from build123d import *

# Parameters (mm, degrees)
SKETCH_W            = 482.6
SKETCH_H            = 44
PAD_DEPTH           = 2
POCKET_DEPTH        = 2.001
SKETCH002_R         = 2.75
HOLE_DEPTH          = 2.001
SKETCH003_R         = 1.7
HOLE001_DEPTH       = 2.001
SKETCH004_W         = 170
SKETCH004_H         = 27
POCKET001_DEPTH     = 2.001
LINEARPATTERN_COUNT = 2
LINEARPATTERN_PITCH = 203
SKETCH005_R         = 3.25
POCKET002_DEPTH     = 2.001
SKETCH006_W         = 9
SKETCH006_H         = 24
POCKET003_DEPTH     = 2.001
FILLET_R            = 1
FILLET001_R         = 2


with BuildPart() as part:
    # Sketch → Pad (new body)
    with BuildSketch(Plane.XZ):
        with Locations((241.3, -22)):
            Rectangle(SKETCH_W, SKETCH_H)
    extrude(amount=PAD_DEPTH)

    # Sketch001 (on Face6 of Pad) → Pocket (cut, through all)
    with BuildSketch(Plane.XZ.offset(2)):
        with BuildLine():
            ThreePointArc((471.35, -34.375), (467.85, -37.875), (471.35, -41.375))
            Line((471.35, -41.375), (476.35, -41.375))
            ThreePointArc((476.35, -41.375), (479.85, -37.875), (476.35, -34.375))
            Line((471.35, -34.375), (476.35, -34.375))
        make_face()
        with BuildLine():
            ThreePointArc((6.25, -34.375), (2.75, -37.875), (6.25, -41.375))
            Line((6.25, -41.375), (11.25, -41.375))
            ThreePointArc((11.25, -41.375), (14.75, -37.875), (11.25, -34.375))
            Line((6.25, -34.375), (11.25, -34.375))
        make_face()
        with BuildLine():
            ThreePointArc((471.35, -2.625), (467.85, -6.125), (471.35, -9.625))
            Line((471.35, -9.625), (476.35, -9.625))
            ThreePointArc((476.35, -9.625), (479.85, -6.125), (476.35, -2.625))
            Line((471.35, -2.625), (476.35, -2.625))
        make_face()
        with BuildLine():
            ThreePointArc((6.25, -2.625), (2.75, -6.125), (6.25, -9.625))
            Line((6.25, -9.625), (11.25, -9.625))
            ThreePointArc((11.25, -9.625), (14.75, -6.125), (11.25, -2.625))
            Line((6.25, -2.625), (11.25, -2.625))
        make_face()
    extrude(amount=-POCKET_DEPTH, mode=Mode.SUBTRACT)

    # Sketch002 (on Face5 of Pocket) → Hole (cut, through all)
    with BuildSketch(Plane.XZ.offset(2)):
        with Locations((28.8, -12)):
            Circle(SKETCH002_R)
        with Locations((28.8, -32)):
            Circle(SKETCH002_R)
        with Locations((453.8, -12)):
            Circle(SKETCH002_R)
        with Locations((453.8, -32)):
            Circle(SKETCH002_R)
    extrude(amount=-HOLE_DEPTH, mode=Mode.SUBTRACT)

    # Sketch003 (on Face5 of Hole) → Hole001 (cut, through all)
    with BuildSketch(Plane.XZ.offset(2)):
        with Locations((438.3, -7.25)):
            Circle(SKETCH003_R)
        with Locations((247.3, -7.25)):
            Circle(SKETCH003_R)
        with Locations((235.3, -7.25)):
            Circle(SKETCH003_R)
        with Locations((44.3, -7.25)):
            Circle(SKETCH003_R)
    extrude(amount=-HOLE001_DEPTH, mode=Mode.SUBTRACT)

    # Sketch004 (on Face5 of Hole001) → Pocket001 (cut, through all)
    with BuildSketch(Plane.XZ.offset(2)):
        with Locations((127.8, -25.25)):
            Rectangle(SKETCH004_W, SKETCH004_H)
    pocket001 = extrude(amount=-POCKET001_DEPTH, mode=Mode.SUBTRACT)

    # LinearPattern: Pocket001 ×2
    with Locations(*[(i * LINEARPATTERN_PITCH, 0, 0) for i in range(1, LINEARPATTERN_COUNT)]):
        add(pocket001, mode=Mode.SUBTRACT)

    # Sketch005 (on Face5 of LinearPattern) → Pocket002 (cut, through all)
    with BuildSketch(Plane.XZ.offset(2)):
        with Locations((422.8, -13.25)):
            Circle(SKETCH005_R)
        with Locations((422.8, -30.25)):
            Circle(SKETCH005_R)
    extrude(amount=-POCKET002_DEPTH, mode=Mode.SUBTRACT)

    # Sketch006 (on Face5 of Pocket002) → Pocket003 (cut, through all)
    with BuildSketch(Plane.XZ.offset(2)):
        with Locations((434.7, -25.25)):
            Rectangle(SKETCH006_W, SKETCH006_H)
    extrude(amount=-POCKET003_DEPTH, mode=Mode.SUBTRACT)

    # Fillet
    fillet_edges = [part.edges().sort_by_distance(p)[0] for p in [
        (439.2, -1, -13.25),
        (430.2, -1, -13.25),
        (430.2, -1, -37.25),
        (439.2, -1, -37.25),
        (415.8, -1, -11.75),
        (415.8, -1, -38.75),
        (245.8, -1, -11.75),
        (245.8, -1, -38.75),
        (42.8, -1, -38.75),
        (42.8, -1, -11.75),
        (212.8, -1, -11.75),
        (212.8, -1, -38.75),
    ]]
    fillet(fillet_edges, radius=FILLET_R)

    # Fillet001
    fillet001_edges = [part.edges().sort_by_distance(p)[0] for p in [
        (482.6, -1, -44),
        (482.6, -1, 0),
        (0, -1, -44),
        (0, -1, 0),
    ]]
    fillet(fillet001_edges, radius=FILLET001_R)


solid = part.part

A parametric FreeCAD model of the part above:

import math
import FreeCAD as App
import Part
import Sketcher

V = App.Vector


def edges_at(feature, points):
    """Names of the edges that pass closest to the given points."""
    edges = feature.Shape.Edges
    near = lambda p: min(range(len(edges)), key=lambda i: edges[i].distToShape(Part.Vertex(*p))[0])
    return sorted({f"Edge{near(p) + 1}" for p in points})

doc = App.newDocument("Part")
body = doc.addObject("PartDesign::Body", "Body")

# Sketch on XZ plane
sketch1 = doc.addObject("Sketcher::SketchObject", "Sketch")
body.addObject(sketch1)
sketch1.AttachmentSupport = (doc.XZ_Plane, [""])
sketch1.MapMode = "FlatFace"
sketch1.addGeometry(Part.LineSegment(V(0, 0, 0), V(0, -44, 0)), False)
sketch1.addGeometry(Part.LineSegment(V(0, -44, 0), V(483, -44, 0)), False)
sketch1.addGeometry(Part.LineSegment(V(483, -44, 0), V(483, 0, 0)), False)
sketch1.addGeometry(Part.LineSegment(V(483, 0, 0), V(0, 0, 0)), False)
sketch1.addConstraint(Sketcher.Constraint("Coincident", 0, 2, 1, 1))
sketch1.addConstraint(Sketcher.Constraint("Coincident", 1, 2, 2, 1))
sketch1.addConstraint(Sketcher.Constraint("Coincident", 2, 2, 3, 1))
sketch1.addConstraint(Sketcher.Constraint("Coincident", 3, 2, 0, 1))
sketch1.addConstraint(Sketcher.Constraint("Vertical", 0))
sketch1.addConstraint(Sketcher.Constraint("Horizontal", 1))
sketch1.addConstraint(Sketcher.Constraint("Vertical", 2))
sketch1.addConstraint(Sketcher.Constraint("Horizontal", 3))
sketch1.addConstraint(Sketcher.Constraint("Coincident", 3, 2, -1, 1))
sketch1.addConstraint(Sketcher.Constraint("DistanceY", 0, 2, 0, 1, 44.0))
sketch1.addConstraint(Sketcher.Constraint("DistanceX", 1, 1, 1, 2, 482.6))
pad1 = doc.addObject("PartDesign::Pad", "Pad")
body.addObject(pad1)
pad1.Profile = sketch1
pad1.Length = 2

# Sketch on XZ plane
sketch2 = doc.addObject("Sketcher::SketchObject", "Sketch001")
body.addObject(sketch2)
sketch2.AttachmentSupport = (doc.XZ_Plane, [""])
sketch2.MapMode = "FlatFace"
sketch2.AttachmentOffset = App.Placement(V(0, 0, 2), App.Rotation())
sketch2.addGeometry(Part.ArcOfCircle(Part.Circle(V(471.4, -37.9, 0), V(0, 0, 1), 3.5), math.radians(90), math.radians(270)), False)
sketch2.addGeometry(Part.LineSegment(V(471.4, -41.4, 0), V(476.4, -41.4, 0)), False)
sketch2.addGeometry(Part.ArcOfCircle(Part.Circle(V(476.4, -37.9, 0), V(0, 0, 1), 3.5), math.radians(-90), math.radians(90)), False)
sketch2.addGeometry(Part.LineSegment(V(476.4, -34.4, 0), V(471.4, -34.4, 0)), False)
sketch2.addGeometry(Part.ArcOfCircle(Part.Circle(V(6.2, -37.9, 0), V(0, 0, 1), 3.5), math.radians(90), math.radians(270)), False)
sketch2.addGeometry(Part.LineSegment(V(6.2, -41.4, 0), V(11.2, -41.4, 0)), False)
sketch2.addGeometry(Part.ArcOfCircle(Part.Circle(V(11.2, -37.9, 0), V(0, 0, 1), 3.5), math.radians(-90), math.radians(90)), False)
sketch2.addGeometry(Part.LineSegment(V(11.2, -34.4, 0), V(6.2, -34.4, 0)), False)
sketch2.addGeometry(Part.ArcOfCircle(Part.Circle(V(471.4, -6.1, 0), V(0, 0, 1), 3.5), math.radians(90), math.radians(270)), False)
sketch2.addGeometry(Part.LineSegment(V(471.4, -9.6, 0), V(476.4, -9.6, 0)), False)
sketch2.addGeometry(Part.ArcOfCircle(Part.Circle(V(476.4, -6.1, 0), V(0, 0, 1), 3.5), math.radians(-90), math.radians(90)), False)
sketch2.addGeometry(Part.LineSegment(V(476.4, -2.6, 0), V(471.4, -2.6, 0)), False)
sketch2.addGeometry(Part.ArcOfCircle(Part.Circle(V(6.2, -6.1, 0), V(0, 0, 1), 3.5), math.radians(90), math.radians(270)), False)
sketch2.addGeometry(Part.LineSegment(V(6.2, -9.6, 0), V(11.2, -9.6, 0)), False)
sketch2.addGeometry(Part.ArcOfCircle(Part.Circle(V(11.2, -6.1, 0), V(0, 0, 1), 3.5), math.radians(-90), math.radians(90)), False)
sketch2.addGeometry(Part.LineSegment(V(11.2, -2.6, 0), V(6.2, -2.6, 0)), False)
sketch2.addConstraint(Sketcher.Constraint("Tangent", 0, 2, 1, 1))
sketch2.addConstraint(Sketcher.Constraint("Tangent", 1, 2, 2, 1))
sketch2.addConstraint(Sketcher.Constraint("Tangent", 2, 2, 3, 1))
sketch2.addConstraint(Sketcher.Constraint("Tangent", 3, 2, 0, 1))
sketch2.addConstraint(Sketcher.Constraint("Tangent", 4, 2, 5, 1))
sketch2.addConstraint(Sketcher.Constraint("Tangent", 5, 2, 6, 1))
sketch2.addConstraint(Sketcher.Constraint("Tangent", 6, 2, 7, 1))
sketch2.addConstraint(Sketcher.Constraint("Tangent", 7, 2, 4, 1))
sketch2.addConstraint(Sketcher.Constraint("Tangent", 8, 2, 9, 1))
sketch2.addConstraint(Sketcher.Constraint("Tangent", 9, 2, 10, 1))
sketch2.addConstraint(Sketcher.Constraint("Tangent", 10, 2, 11, 1))
sketch2.addConstraint(Sketcher.Constraint("Tangent", 11, 2, 8, 1))
sketch2.addConstraint(Sketcher.Constraint("Tangent", 12, 2, 13, 1))
sketch2.addConstraint(Sketcher.Constraint("Tangent", 13, 2, 14, 1))
sketch2.addConstraint(Sketcher.Constraint("Tangent", 14, 2, 15, 1))
sketch2.addConstraint(Sketcher.Constraint("Tangent", 15, 2, 12, 1))
sketch2.addConstraint(Sketcher.Constraint("Horizontal", 1))
sketch2.addConstraint(Sketcher.Constraint("Horizontal", 3))
sketch2.addConstraint(Sketcher.Constraint("Horizontal", 5))
sketch2.addConstraint(Sketcher.Constraint("Horizontal", 7))
sketch2.addConstraint(Sketcher.Constraint("Horizontal", 9))
sketch2.addConstraint(Sketcher.Constraint("Horizontal", 11))
sketch2.addConstraint(Sketcher.Constraint("Horizontal", 13))
sketch2.addConstraint(Sketcher.Constraint("Horizontal", 15))
sketch2.addConstraint(Sketcher.Constraint("Equal", 2, 4))
sketch2.addConstraint(Sketcher.Constraint("Equal", 6, 8))
sketch2.addConstraint(Sketcher.Constraint("Equal", 10, 12))
sketch2.addConstraint(Sketcher.Constraint("Horizontal", 2, 3, 4, 3))
sketch2.addConstraint(Sketcher.Constraint("Horizontal", 10, 3, 12, 3))
sketch2.addConstraint(Sketcher.Constraint("Vertical", 0, 3, 8, 3))
sketch2.addConstraint(Sketcher.Constraint("Vertical", 2, 3, 10, 3))
sketch2.addConstraint(Sketcher.Constraint("Vertical", 4, 3, 12, 3))
sketch2.addConstraint(Sketcher.Constraint("Vertical", 6, 3, 14, 3))
sketch2.addConstraint(Sketcher.Constraint("Equal", 3, 5))
sketch2.addConstraint(Sketcher.Constraint("Radius", 0, 3.5))
sketch2.addConstraint(Sketcher.Constraint("DistanceX", 1, 1, 1, 2, 5.0))
sketch2.addConstraint(Sketcher.Constraint("DistanceX", 4, 3, 0, 3, 465.1))
sketch2.addConstraint(Sketcher.Constraint("DistanceX", -1, 1, 0, 3, 471.35))
sketch2.addConstraint(Sketcher.Constraint("DistanceY", 0, 3, 8, 3, 31.75))
sketch2.addConstraint(Sketcher.Constraint("DistanceY", 0, 3, -1, 1, 37.875))
pocket1 = doc.addObject("PartDesign::Pocket", "Pocket")
body.addObject(pocket1)
pocket1.Profile = sketch2
pocket1.Type = "ThroughAll"

# Sketch on XZ plane
sketch3 = doc.addObject("Sketcher::SketchObject", "Sketch002")
body.addObject(sketch3)
sketch3.AttachmentSupport = (doc.XZ_Plane, [""])
sketch3.MapMode = "FlatFace"
sketch3.AttachmentOffset = App.Placement(V(0, 0, 2), App.Rotation())
sketch3.addGeometry(Part.Circle(V(28.8, -12, 0), V(0, 0, 1), 2.8), False)
sketch3.addGeometry(Part.Circle(V(28.8, -32, 0), V(0, 0, 1), 2.8), False)
sketch3.addGeometry(Part.Circle(V(453.8, -12, 0), V(0, 0, 1), 2.8), False)
sketch3.addGeometry(Part.Circle(V(453.8, -32, 0), V(0, 0, 1), 2.8), False)
sketch3.addConstraint(Sketcher.Constraint("Equal", 0, 1))
sketch3.addConstraint(Sketcher.Constraint("Equal", 1, 2))
sketch3.addConstraint(Sketcher.Constraint("Equal", 2, 3))
sketch3.addConstraint(Sketcher.Constraint("Horizontal", 0, 3, 2, 3))
sketch3.addConstraint(Sketcher.Constraint("Horizontal", 1, 3, 3, 3))
sketch3.addConstraint(Sketcher.Constraint("Vertical", 0, 3, 1, 3))
sketch3.addConstraint(Sketcher.Constraint("Vertical", 2, 3, 3, 3))
sketch3.addConstraint(Sketcher.Constraint("Diameter", 0, 5.5))
sketch3.addConstraint(Sketcher.Constraint("DistanceY", 0, 3, -1, 1, 12.0))
sketch3.addConstraint(Sketcher.Constraint("DistanceY", 1, 3, -1, 1, 32.0))
sketch3.addConstraint(Sketcher.Constraint("DistanceX", 0, 3, 2, 3, 425.0))
sketch3.addConstraint(Sketcher.Constraint("DistanceX", -1, 1, 0, 3, 28.8))
pocket2 = doc.addObject("PartDesign::Pocket", "Pocket001")
body.addObject(pocket2)
pocket2.Profile = sketch3
pocket2.Type = "ThroughAll"

# Sketch on XZ plane
sketch4 = doc.addObject("Sketcher::SketchObject", "Sketch003")
body.addObject(sketch4)
sketch4.AttachmentSupport = (doc.XZ_Plane, [""])
sketch4.MapMode = "FlatFace"
sketch4.AttachmentOffset = App.Placement(V(0, 0, 2), App.Rotation())
sketch4.addGeometry(Part.Circle(V(438.3, -7.2, 0), V(0, 0, 1), 1.7), False)
sketch4.addGeometry(Part.Circle(V(247.3, -7.2, 0), V(0, 0, 1), 1.7), False)
sketch4.addGeometry(Part.Circle(V(235.3, -7.2, 0), V(0, 0, 1), 1.7), False)
sketch4.addGeometry(Part.Circle(V(44.3, -7.2, 0), V(0, 0, 1), 1.7), False)
sketch4.addConstraint(Sketcher.Constraint("Equal", 0, 1))
sketch4.addConstraint(Sketcher.Constraint("Equal", 1, 2))
sketch4.addConstraint(Sketcher.Constraint("Equal", 2, 3))
sketch4.addConstraint(Sketcher.Constraint("Horizontal", 0, 3, 1, 3))
sketch4.addConstraint(Sketcher.Constraint("Horizontal", 1, 3, 2, 3))
sketch4.addConstraint(Sketcher.Constraint("Horizontal", 2, 3, 3, 3))
sketch4.addConstraint(Sketcher.Constraint("Diameter", 0, 3.4))
sketch4.addConstraint(Sketcher.Constraint("DistanceX", 1, 3, 0, 3, 191.0))
sketch4.addConstraint(Sketcher.Constraint("DistanceX", 2, 3, 1, 3, 12.0))
sketch4.addConstraint(Sketcher.Constraint("DistanceX", 3, 3, 2, 3, 191.0))
sketch4.addConstraint(Sketcher.Constraint("DistanceX", -1, 1, 0, 3, 438.3))
sketch4.addConstraint(Sketcher.Constraint("DistanceY", 0, 3, -1, 1, 7.25))
pocket3 = doc.addObject("PartDesign::Pocket", "Pocket002")
body.addObject(pocket3)
pocket3.Profile = sketch4
pocket3.Type = "ThroughAll"

# Sketch on XZ plane
sketch5 = doc.addObject("Sketcher::SketchObject", "Sketch004")
body.addObject(sketch5)
sketch5.AttachmentSupport = (doc.XZ_Plane, [""])
sketch5.MapMode = "FlatFace"
sketch5.AttachmentOffset = App.Placement(V(0, 0, 2), App.Rotation())
sketch5.addGeometry(Part.LineSegment(V(43, -12, 0), V(43, -39, 0)), False)
sketch5.addGeometry(Part.LineSegment(V(43, -39, 0), V(213, -39, 0)), False)
sketch5.addGeometry(Part.LineSegment(V(213, -39, 0), V(213, -12, 0)), False)
sketch5.addGeometry(Part.LineSegment(V(213, -12, 0), V(43, -12, 0)), False)
sketch5.addConstraint(Sketcher.Constraint("Coincident", 0, 2, 1, 1))
sketch5.addConstraint(Sketcher.Constraint("Coincident", 1, 2, 2, 1))
sketch5.addConstraint(Sketcher.Constraint("Coincident", 2, 2, 3, 1))
sketch5.addConstraint(Sketcher.Constraint("Coincident", 3, 2, 0, 1))
sketch5.addConstraint(Sketcher.Constraint("Vertical", 0))
sketch5.addConstraint(Sketcher.Constraint("Horizontal", 1))
sketch5.addConstraint(Sketcher.Constraint("Vertical", 2))
sketch5.addConstraint(Sketcher.Constraint("Horizontal", 3))
sketch5.addConstraint(Sketcher.Constraint("DistanceX", 1, 1, 1, 2, 170.0))
sketch5.addConstraint(Sketcher.Constraint("DistanceY", 0, 2, 0, 1, 27.0))
sketch5.addConstraint(Sketcher.Constraint("DistanceX", -1, 1, 0, 2, 42.8))
sketch5.addConstraint(Sketcher.Constraint("DistanceY", 0, 2, -1, 1, 38.75))
pocket4 = doc.addObject("PartDesign::Pocket", "Pocket003")
body.addObject(pocket4)
pocket4.Profile = sketch5
pocket4.Type = "ThroughAll"
doc.recompute()

linearpattern = doc.addObject("PartDesign::LinearPattern", "LinearPattern")
body.addObject(linearpattern)
linearpattern.Originals = [pocket4]
linearpattern.Direction = (doc.X_Axis, [""])
linearpattern.Mode = "offset"
linearpattern.Offset = 203
linearpattern.Occurrences = 2
body.Tip = linearpattern

# Sketch on XZ plane
sketch6 = doc.addObject("Sketcher::SketchObject", "Sketch005")
body.addObject(sketch6)
sketch6.AttachmentSupport = (doc.XZ_Plane, [""])
sketch6.MapMode = "FlatFace"
sketch6.AttachmentOffset = App.Placement(V(0, 0, 2), App.Rotation())
sketch6.addGeometry(Part.Circle(V(422.8, -13.2, 0), V(0, 0, 1), 3.2), False)
sketch6.addGeometry(Part.Circle(V(422.8, -30.2, 0), V(0, 0, 1), 3.2), False)
sketch6.addConstraint(Sketcher.Constraint("Equal", 0, 1))
sketch6.addConstraint(Sketcher.Constraint("Vertical", 0, 3, 1, 3))
sketch6.addConstraint(Sketcher.Constraint("Diameter", 0, 6.5))
sketch6.addConstraint(Sketcher.Constraint("DistanceY", 1, 3, 0, 3, 17.0))
sketch6.addConstraint(Sketcher.Constraint("DistanceX", -1, 1, 0, 3, 422.8))
sketch6.addConstraint(Sketcher.Constraint("DistanceY", 0, 3, -1, 1, 13.25))
pocket5 = doc.addObject("PartDesign::Pocket", "Pocket004")
body.addObject(pocket5)
pocket5.Profile = sketch6
pocket5.Type = "ThroughAll"

# Sketch on XZ plane
sketch7 = doc.addObject("Sketcher::SketchObject", "Sketch006")
body.addObject(sketch7)
sketch7.AttachmentSupport = (doc.XZ_Plane, [""])
sketch7.MapMode = "FlatFace"
sketch7.AttachmentOffset = App.Placement(V(0, 0, 2), App.Rotation())
sketch7.addGeometry(Part.LineSegment(V(430, -13, 0), V(430, -37, 0)), False)
sketch7.addGeometry(Part.LineSegment(V(430, -37, 0), V(439, -37, 0)), False)
sketch7.addGeometry(Part.LineSegment(V(439, -37, 0), V(439, -13, 0)), False)
sketch7.addGeometry(Part.LineSegment(V(439, -13, 0), V(430, -13, 0)), False)
sketch7.addConstraint(Sketcher.Constraint("Coincident", 0, 2, 1, 1))
sketch7.addConstraint(Sketcher.Constraint("Coincident", 1, 2, 2, 1))
sketch7.addConstraint(Sketcher.Constraint("Coincident", 2, 2, 3, 1))
sketch7.addConstraint(Sketcher.Constraint("Coincident", 3, 2, 0, 1))
sketch7.addConstraint(Sketcher.Constraint("Vertical", 0))
sketch7.addConstraint(Sketcher.Constraint("Horizontal", 1))
sketch7.addConstraint(Sketcher.Constraint("Vertical", 2))
sketch7.addConstraint(Sketcher.Constraint("Horizontal", 3))
sketch7.addConstraint(Sketcher.Constraint("DistanceX", 1, 1, 1, 2, 9.0))
sketch7.addConstraint(Sketcher.Constraint("DistanceY", 0, 2, 0, 1, 24.0))
sketch7.addConstraint(Sketcher.Constraint("DistanceX", -1, 1, 0, 2, 430.2))
sketch7.addConstraint(Sketcher.Constraint("DistanceY", 0, 2, -1, 1, 37.25))
pocket6 = doc.addObject("PartDesign::Pocket", "Pocket005")
body.addObject(pocket6)
pocket6.Profile = sketch7
pocket6.Type = "ThroughAll"
doc.recompute()

fillet = doc.addObject("PartDesign::Fillet", "Fillet")
body.addObject(fillet)
fillet.Base = (pocket6, edges_at(pocket6, [
    (439.2, -1, -13.25),
    (430.2, -1, -13.25),
    (430.2, -1, -37.25),
    (439.2, -1, -37.25),
    (415.8, -1, -11.75),
    (415.8, -1, -38.75),
    (245.8, -1, -11.75),
    (245.8, -1, -38.75),
    (42.8, -1, -38.75),
    (42.8, -1, -11.75),
    (212.8, -1, -11.75),
    (212.8, -1, -38.75),
]))
fillet.Radius = 1
doc.recompute()

fillet2 = doc.addObject("PartDesign::Fillet", "Fillet001")
body.addObject(fillet2)
fillet2.Base = (fillet, edges_at(fillet, [
    (482.6, -1, -44),
    (482.6, -1, 0),
    (0, -1, -44),
    (0, -1, 0),
]))
fillet2.Radius = 2

doc.recompute()
